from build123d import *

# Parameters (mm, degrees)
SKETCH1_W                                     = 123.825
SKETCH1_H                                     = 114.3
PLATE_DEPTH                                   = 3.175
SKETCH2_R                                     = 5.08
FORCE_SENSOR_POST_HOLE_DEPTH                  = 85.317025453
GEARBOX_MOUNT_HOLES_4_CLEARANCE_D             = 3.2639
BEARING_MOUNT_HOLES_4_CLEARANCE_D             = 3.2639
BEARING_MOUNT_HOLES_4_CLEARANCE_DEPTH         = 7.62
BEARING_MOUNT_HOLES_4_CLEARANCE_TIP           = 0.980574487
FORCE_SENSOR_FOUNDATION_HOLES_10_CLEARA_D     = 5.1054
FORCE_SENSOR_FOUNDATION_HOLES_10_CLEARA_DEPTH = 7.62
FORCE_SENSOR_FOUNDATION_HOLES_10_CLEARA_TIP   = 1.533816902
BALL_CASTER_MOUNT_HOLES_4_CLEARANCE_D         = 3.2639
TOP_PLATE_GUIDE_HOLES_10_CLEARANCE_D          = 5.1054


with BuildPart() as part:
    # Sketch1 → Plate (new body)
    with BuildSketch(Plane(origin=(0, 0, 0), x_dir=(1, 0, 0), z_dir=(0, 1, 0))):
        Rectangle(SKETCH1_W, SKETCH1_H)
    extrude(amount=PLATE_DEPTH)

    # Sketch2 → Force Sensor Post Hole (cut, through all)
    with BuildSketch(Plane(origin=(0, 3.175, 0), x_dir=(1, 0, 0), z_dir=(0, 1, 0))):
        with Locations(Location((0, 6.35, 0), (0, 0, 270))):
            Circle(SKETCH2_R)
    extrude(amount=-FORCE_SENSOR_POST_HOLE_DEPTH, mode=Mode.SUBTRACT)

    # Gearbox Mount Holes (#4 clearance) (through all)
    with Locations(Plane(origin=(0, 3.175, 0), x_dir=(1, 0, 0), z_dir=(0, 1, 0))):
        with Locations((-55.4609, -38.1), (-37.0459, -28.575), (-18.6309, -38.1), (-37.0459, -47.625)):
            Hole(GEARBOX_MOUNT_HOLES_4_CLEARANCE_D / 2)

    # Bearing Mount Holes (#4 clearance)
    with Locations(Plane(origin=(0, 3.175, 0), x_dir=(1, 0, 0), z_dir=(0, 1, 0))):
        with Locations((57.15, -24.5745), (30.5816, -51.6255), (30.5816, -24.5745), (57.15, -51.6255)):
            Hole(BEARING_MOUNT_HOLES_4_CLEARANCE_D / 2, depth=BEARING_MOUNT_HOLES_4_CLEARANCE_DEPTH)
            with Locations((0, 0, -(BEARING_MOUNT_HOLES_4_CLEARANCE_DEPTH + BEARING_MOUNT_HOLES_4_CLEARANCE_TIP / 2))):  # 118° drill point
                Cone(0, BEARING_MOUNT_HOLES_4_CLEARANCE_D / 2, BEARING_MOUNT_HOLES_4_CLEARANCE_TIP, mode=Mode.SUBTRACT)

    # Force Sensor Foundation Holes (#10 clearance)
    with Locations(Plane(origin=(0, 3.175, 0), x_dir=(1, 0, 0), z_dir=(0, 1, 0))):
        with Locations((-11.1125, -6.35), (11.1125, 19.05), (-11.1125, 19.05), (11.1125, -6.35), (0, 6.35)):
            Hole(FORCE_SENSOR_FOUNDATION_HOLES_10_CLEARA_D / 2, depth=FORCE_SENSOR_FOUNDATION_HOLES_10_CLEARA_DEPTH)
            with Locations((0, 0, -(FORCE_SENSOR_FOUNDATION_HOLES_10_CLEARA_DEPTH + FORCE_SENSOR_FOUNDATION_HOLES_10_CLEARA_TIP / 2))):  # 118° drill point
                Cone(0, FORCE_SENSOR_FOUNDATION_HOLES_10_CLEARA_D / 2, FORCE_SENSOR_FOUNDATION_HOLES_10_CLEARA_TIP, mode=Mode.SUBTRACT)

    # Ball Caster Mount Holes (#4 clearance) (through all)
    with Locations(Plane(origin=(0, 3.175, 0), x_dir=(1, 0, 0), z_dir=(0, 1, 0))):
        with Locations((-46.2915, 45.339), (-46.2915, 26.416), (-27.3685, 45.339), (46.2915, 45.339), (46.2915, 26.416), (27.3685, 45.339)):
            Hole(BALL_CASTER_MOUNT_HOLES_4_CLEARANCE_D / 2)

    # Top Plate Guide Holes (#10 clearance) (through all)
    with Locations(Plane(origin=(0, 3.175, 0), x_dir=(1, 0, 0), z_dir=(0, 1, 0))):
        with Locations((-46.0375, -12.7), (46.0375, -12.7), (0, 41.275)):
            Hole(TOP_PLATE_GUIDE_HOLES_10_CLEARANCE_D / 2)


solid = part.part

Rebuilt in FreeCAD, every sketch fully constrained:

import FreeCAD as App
import Part
import Sketcher
from FreeCAD import Vector
Q = App.Units.Quantity


def add_polygon(sketch, points):
    """Adds a closed chain of lines whose ends are joined by coincident constraints."""
    first, n = sketch.GeometryCount, len(points)
    for a, b in zip(points, points[1:] + points[:1]):
        sketch.addGeometry(Part.LineSegment(App.Vector(*a, 0), App.Vector(*b, 0)), False)
    for i in range(n):
        sketch.addConstraint(Sketcher.Constraint("Coincident", first + i, 2, first + (i + 1) % n, 1))

doc = App.newDocument("Part")
params = doc.addObject("Spreadsheet::Sheet", "Params")
for row, (alias, value) in enumerate([
    ("sketch1_height", "4.5 in"),
    ("sketch1_width", "4.875 in"),
    ("pad1_length", "0.125 in"),
    ("sketch2_diameter", "0.4 in"),
    ("hole_diameter", "0.1285 in"),
    ("hole2_diameter", "0.1285 in"),
    ("hole2_depth", "0.3 in"),
    ("sketch5_diameter", "0.201 in"),
    ("hole3_diameter", "0.201 in"),
    ("hole3_depth", "0.3 in"),
    ("hole4_diameter", "0.1285 in"),
    ("sketch7_diameter", "0.201 in"),
    ("hole5_diameter", "0.201 in"),
], start=1):
    params.set(f"A{row}", alias)
    params.set(f"B{row}", "=" + value)
    params.setAlias(f"B{row}", alias)

body = doc.addObject("PartDesign::Body", "Body")

# Sketch on XZ plane
sketch1 = body.newObject("Sketcher::SketchObject", "Sketch")
sketch1.AttachmentSupport = (doc.getObject("XZ_Plane"), [""])
sketch1.MapMode = "FlatFace"
add_polygon(sketch1, [(-61.9125, -57.15), (-61.9125, 57.15), (61.9125, 57.15), (61.9125, -57.15)])  # lines 0-3
sketch1.addConstraint([
    Sketcher.Constraint("Vertical", 0),
    Sketcher.Constraint("Horizontal", 1),
    Sketcher.Constraint("Vertical", 2),
    Sketcher.Constraint("Horizontal", 3),
    Sketcher.Constraint("Symmetric", 0, 2, 2, 2, -1, 1),
    Sketcher.Constraint("DistanceY", 0, 1, 0, 2, Q("4.5 in")),
    Sketcher.Constraint("DistanceX", 1, 1, 1, 2, Q("4.875 in")),
])
sketch1.setExpression("Constraints[9]", "Params.sketch1_height")
sketch1.setExpression("Constraints[10]", "Params.sketch1_width")
pad1 = body.newObject("PartDesign::Pad", "Pad")
pad1.Profile = sketch1
pad1.setExpression("Length", "Params.pad1_length")
pad1.Reversed = True

# Sketch on XZ plane
sketch2 = body.newObject("Sketcher::SketchObject", "Sketch001")
sketch2.AttachmentSupport = (doc.getObject("XZ_Plane"), [""])
sketch2.MapMode = "FlatFace"
sketch2.AttachmentOffset = App.Placement(Vector(0, 0, -0.125 * 25.4), App.Rotation())
sketch2.addGeometry(Part.Circle(Vector(0, -6.35, 0), Vector(0, 0, 1), 5.08), False)
sketch2.addConstraint([
    Sketcher.Constraint("PointOnObject", 0, 3, -2),
    Sketcher.Constraint("Diameter", 0, Q("0.4 in")),
    Sketcher.Constraint("DistanceY", 0, 3, -1, 1, Q("0.25 in")),
])
sketch2.setExpression("Constraints[1]", "Params.sketch2_diameter")
pocket1 = body.newObject("PartDesign::Pocket", "Pocket")
pocket1.Profile = sketch2
pocket1.Type = "ThroughAll"
pocket1.Reversed = True

# Sketch on XZ plane
sketch3 = body.newObject("Sketcher::SketchObject", "Sketch002")
sketch3.AttachmentSupport = (doc.getObject("XZ_Plane"), [""])
sketch3.MapMode = "FlatFace"
sketch3.AttachmentOffset = App.Placement(Vector(0, 0, -0.125 * 25.4), App.Rotation())
sketch3.addGeometry([
    Part.Circle(Vector(-55.4609, 38.1, 0), Vector(0, 0, 1), 1.63195),
    Part.Circle(Vector(-37.0459, 28.575, 0), Vector(0, 0, 1), 1.63195),
    Part.Circle(Vector(-18.6309, 38.1, 0), Vector(0, 0, 1), 1.63195),
    Part.Circle(Vector(-37.0459, 47.625, 0), Vector(0, 0, 1), 1.63195),
], False)
sketch3.addConstraint([
    Sketcher.Constraint("Equal", 0, 1),
    Sketcher.Constraint("Equal", 1, 2),
    Sketcher.Constraint("Equal", 2, 3),
    Sketcher.Constraint("Horizontal", 0, 3, 2, 3),
    Sketcher.Constraint("Vertical", 1, 3, 3, 3),
    Sketcher.Constraint("Diameter", 0, Q("0.1285 in")),
    Sketcher.Constraint("DistanceY", -1, 1, 0, 3, Q("1.5 in")),
    Sketcher.Constraint("DistanceX", 0, 3, 2, 3, Q("1.45 in")),
    Sketcher.Constraint("DistanceY", 1, 3, 3, 3, Q("0.75 in")),
    Sketcher.Constraint("DistanceY", -1, 1, 1, 3, Q("1.125 in")),
    Sketcher.Constraint("DistanceX", 0, 3, 1, 3, Q("0.725 in")),
    Sketcher.Constraint("DistanceX", 0, 3, -1, 1, Q("2.1835 in")),
])
doc.recompute()
hole = body.newObject("PartDesign::Hole", "Hole")
hole.Profile = sketch3
hole.ThreadType = "None"
hole.setExpression("Diameter", "Params.hole_diameter")
hole.DepthType = "ThroughAll"
hole.Reversed = True

# Sketch on XZ plane
sketch4 = body.newObject("Sketcher::SketchObject", "Sketch003")
sketch4.AttachmentSupport = (doc.getObject("XZ_Plane"), [""])
sketch4.MapMode = "FlatFace"
sketch4.AttachmentOffset = App.Placement(Vector(0, 0, -0.125 * 25.4), App.Rotation())
sketch4.addGeometry([
    Part.Circle(Vector(57.15, 24.5745, 0), Vector(0, 0, 1), 1.63195),
    Part.Circle(Vector(30.5816, 51.6255, 0), Vector(0, 0, 1), 1.63195),
    Part.Circle(Vector(30.5816, 24.5745, 0), Vector(0, 0, 1), 1.63195),
    Part.Circle(Vector(57.15, 51.6255, 0), Vector(0, 0, 1), 1.63195),
], False)
sketch4.addConstraint([
    Sketcher.Constraint("Equal", 0, 1),
    Sketcher.Constraint("Equal", 1, 2),
    Sketcher.Constraint("Equal", 2, 3),
    Sketcher.Constraint("Horizontal", 0, 3, 2, 3),
    Sketcher.Constraint("Horizontal", 1, 3, 3, 3),
    Sketcher.Constraint("Vertical", 1, 3, 2, 3),
    Sketcher.Constraint("Vertical", 0, 3, 3, 3),
    Sketcher.Constraint("Diameter", 0, Q("0.1285 in")),
    Sketcher.Constraint("DistanceX", -1, 1, 0, 3, Q("2.25 in")),
    Sketcher.Constraint("DistanceX", -1, 1, 1, 3, Q("1.204 in")),
    Sketcher.Constraint("DistanceY", 0, 3, 1, 3, Q("1.065 in")),
    Sketcher.Constraint("DistanceY", -1, 1, 0, 3, Q("0.9675 in")),
])
doc.recompute()
hole2 = body.newObject("PartDesign::Hole", "Hole001")
hole2.Profile = sketch4
hole2.ThreadType = "None"
hole2.setExpression("Diameter", "Params.hole2_diameter")
hole2.DepthType = "Dimension"
hole2.setExpression("Depth", "Params.hole2_depth")
hole2.DrillPoint = "Angled"
hole2.DrillPointAngle = 118
hole2.Reversed = True

# Sketch on XZ plane
sketch5 = body.newObject("Sketcher::SketchObject", "Sketch004")
sketch5.AttachmentSupport = (doc.getObject("XZ_Plane"), [""])
sketch5.MapMode = "FlatFace"
sketch5.AttachmentOffset = App.Placement(Vector(0, 0, -0.125 * 25.4), App.Rotation())
sketch5.addGeometry([
    Part.Circle(Vector(-11.1125, 6.35, 0), Vector(0, 0, 1), 2.5527),  # 0
    Part.Circle(Vector(11.1125, -19.05, 0), Vector(0, 0, 1), 2.5527),  # 1
    Part.Circle(Vector(-11.1125, -19.05, 0), Vector(0, 0, 1), 2.5527),  # 2
    Part.Circle(Vector(11.1125, 6.35, 0), Vector(0, 0, 1), 2.5527),  # 3
    Part.Circle(Vector(0, -6.35, 0), Vector(0, 0, 1), 2.5527),  # 4
], False)
sketch5.addConstraint([
    Sketcher.Constraint("Equal", 0, 1),
    Sketcher.Constraint("Equal", 1, 2),
    Sketcher.Constraint("Equal", 2, 3),
    Sketcher.Constraint("Equal", 3, 4),
    Sketcher.Constraint("Symmetric", 1, 3, 2, 3, -2),
    Sketcher.Constraint("Symmetric", 0, 3, 3, 3, -2),
    Sketcher.Constraint("PointOnObject", 4, 3, -2),
    Sketcher.Constraint("Vertical", 0, 3, 2, 3),
    Sketcher.Constraint("Diameter", 0, Q("0.201 in")),
    Sketcher.Constraint("DistanceY", 1, 3, 0, 3, Q("1 in")),
    Sketcher.Constraint("DistanceY", 4, 3, 0, 3, Q("0.5 in")),
    Sketcher.Constraint("DistanceY", -1, 1, 0, 3, Q("0.25 in")),
    Sketcher.Constraint("DistanceX", 0, 3, -1, 1, Q("0.4375 in")),
])
sketch5.setExpression("Constraints[8]", "Params.sketch5_diameter")
doc.recompute()
hole3 = body.newObject("PartDesign::Hole", "Hole002")
hole3.Profile = sketch5
hole3.ThreadType = "None"
hole3.setExpression("Diameter", "Params.hole3_diameter")
hole3.DepthType = "Dimension"
hole3.setExpression("Depth", "Params.hole3_depth")
hole3.DrillPoint = "Angled"
hole3.DrillPointAngle = 118
hole3.Reversed = True

# Sketch on XZ plane
sketch6 = body.newObject("Sketcher::SketchObject", "Sketch005")
sketch6.AttachmentSupport = (doc.getObject("XZ_Plane"), [""])
sketch6.MapMode = "FlatFace"
sketch6.AttachmentOffset = App.Placement(Vector(0, 0, -0.125 * 25.4), App.Rotation())
sketch6.addGeometry([
    Part.Circle(Vector(-46.2915, -45.339, 0), Vector(0, 0, 1), 1.63195),  # 0
    Part.Circle(Vector(-46.2915, -26.416, 0), Vector(0, 0, 1), 1.63195),  # 1
    Part.Circle(Vector(-27.3685, -45.339, 0), Vector(0, 0, 1), 1.63195),  # 2
    Part.Circle(Vector(46.2915, -45.339, 0), Vector(0, 0, 1), 1.63195),  # 3
    Part.Circle(Vector(46.2915, -26.416, 0), Vector(0, 0, 1), 1.63195),  # 4
    Part.Circle(Vector(27.3685, -45.339, 0), Vector(0, 0, 1), 1.63195),  # 5
], False)
sketch6.addConstraint([
    Sketcher.Constraint("Equal", 0, 1),
    Sketcher.Constraint("Equal", 1, 2),
    Sketcher.Constraint("Equal", 2, 3),
    Sketcher.Constraint("Equal", 3, 4),
    Sketcher.Constraint("Equal", 4, 5),
    Sketcher.Constraint("Symmetric", 0, 3, 3, 3, -2),
    Sketcher.Constraint("Symmetric", 1, 3, 4, 3, -2),
    Sketcher.Constraint("Symmetric", 2, 3, 5, 3, -2),
    Sketcher.Constraint("Horizontal", 0, 3, 2, 3),
    Sketcher.Constraint("Vertical", 0, 3, 1, 3),
    Sketcher.Constraint("Diameter", 0, Q("0.1285 in")),
    Sketcher.Constraint("DistanceX", 2, 3, 3, 3, Q("2.9 in")),
    Sketcher.Constraint("DistanceY", 1, 3, -1, 1, Q("1.04 in")),
    Sketcher.Constraint("DistanceY", 0, 3, -1, 1, Q("1.785 in")),
    Sketcher.Constraint("DistanceX", 0, 3, 2, 3, Q("0.745 in")),
])
doc.recompute()
hole4 = body.newObject("PartDesign::Hole", "Hole003")
hole4.Profile = sketch6
hole4.ThreadType = "None"
hole4.setExpression("Diameter", "Params.hole4_diameter")
hole4.DepthType = "ThroughAll"
hole4.Reversed = True

# Sketch on XZ plane
sketch7 = body.newObject("Sketcher::SketchObject", "Sketch006")
sketch7.AttachmentSupport = (doc.getObject("XZ_Plane"), [""])
sketch7.MapMode = "FlatFace"
sketch7.AttachmentOffset = App.Placement(Vector(0, 0, -0.125 * 25.4), App.Rotation())
sketch7.addGeometry([
    Part.Circle(Vector(-46.0375, 12.7, 0), Vector(0, 0, 1), 2.5527),
    Part.Circle(Vector(46.0375, 12.7, 0), Vector(0, 0, 1), 2.5527),
    Part.Circle(Vector(0, -41.275, 0), Vector(0, 0, 1), 2.5527),
], False)
sketch7.addConstraint([
    Sketcher.Constraint("Equal", 0, 1),
    Sketcher.Constraint("Equal", 1, 2),
    Sketcher.Constraint("Symmetric", 0, 3, 1, 3, -2),
    Sketcher.Constraint("PointOnObject", 2, 3, -2),
    Sketcher.Constraint("Diameter", 0, Q("0.201 in")),
    Sketcher.Constraint("DistanceY", -1, 1, 0, 3, Q("0.5 in")),
    Sketcher.Constraint("DistanceX", 0, 3, -1, 1, Q("1.8125 in")),
    Sketcher.Constraint("DistanceY", 2, 3, -1, 1, Q("1.625 in")),
])
sketch7.setExpression("Constraints[4]", "Params.sketch7_diameter")
doc.recompute()
hole5 = body.newObject("PartDesign::Hole", "Hole004")
hole5.Profile = sketch7
hole5.ThreadType = "None"
hole5.setExpression("Diameter", "Params.hole5_diameter")
hole5.DepthType = "ThroughAll"
hole5.Reversed = True

doc.recompute()
